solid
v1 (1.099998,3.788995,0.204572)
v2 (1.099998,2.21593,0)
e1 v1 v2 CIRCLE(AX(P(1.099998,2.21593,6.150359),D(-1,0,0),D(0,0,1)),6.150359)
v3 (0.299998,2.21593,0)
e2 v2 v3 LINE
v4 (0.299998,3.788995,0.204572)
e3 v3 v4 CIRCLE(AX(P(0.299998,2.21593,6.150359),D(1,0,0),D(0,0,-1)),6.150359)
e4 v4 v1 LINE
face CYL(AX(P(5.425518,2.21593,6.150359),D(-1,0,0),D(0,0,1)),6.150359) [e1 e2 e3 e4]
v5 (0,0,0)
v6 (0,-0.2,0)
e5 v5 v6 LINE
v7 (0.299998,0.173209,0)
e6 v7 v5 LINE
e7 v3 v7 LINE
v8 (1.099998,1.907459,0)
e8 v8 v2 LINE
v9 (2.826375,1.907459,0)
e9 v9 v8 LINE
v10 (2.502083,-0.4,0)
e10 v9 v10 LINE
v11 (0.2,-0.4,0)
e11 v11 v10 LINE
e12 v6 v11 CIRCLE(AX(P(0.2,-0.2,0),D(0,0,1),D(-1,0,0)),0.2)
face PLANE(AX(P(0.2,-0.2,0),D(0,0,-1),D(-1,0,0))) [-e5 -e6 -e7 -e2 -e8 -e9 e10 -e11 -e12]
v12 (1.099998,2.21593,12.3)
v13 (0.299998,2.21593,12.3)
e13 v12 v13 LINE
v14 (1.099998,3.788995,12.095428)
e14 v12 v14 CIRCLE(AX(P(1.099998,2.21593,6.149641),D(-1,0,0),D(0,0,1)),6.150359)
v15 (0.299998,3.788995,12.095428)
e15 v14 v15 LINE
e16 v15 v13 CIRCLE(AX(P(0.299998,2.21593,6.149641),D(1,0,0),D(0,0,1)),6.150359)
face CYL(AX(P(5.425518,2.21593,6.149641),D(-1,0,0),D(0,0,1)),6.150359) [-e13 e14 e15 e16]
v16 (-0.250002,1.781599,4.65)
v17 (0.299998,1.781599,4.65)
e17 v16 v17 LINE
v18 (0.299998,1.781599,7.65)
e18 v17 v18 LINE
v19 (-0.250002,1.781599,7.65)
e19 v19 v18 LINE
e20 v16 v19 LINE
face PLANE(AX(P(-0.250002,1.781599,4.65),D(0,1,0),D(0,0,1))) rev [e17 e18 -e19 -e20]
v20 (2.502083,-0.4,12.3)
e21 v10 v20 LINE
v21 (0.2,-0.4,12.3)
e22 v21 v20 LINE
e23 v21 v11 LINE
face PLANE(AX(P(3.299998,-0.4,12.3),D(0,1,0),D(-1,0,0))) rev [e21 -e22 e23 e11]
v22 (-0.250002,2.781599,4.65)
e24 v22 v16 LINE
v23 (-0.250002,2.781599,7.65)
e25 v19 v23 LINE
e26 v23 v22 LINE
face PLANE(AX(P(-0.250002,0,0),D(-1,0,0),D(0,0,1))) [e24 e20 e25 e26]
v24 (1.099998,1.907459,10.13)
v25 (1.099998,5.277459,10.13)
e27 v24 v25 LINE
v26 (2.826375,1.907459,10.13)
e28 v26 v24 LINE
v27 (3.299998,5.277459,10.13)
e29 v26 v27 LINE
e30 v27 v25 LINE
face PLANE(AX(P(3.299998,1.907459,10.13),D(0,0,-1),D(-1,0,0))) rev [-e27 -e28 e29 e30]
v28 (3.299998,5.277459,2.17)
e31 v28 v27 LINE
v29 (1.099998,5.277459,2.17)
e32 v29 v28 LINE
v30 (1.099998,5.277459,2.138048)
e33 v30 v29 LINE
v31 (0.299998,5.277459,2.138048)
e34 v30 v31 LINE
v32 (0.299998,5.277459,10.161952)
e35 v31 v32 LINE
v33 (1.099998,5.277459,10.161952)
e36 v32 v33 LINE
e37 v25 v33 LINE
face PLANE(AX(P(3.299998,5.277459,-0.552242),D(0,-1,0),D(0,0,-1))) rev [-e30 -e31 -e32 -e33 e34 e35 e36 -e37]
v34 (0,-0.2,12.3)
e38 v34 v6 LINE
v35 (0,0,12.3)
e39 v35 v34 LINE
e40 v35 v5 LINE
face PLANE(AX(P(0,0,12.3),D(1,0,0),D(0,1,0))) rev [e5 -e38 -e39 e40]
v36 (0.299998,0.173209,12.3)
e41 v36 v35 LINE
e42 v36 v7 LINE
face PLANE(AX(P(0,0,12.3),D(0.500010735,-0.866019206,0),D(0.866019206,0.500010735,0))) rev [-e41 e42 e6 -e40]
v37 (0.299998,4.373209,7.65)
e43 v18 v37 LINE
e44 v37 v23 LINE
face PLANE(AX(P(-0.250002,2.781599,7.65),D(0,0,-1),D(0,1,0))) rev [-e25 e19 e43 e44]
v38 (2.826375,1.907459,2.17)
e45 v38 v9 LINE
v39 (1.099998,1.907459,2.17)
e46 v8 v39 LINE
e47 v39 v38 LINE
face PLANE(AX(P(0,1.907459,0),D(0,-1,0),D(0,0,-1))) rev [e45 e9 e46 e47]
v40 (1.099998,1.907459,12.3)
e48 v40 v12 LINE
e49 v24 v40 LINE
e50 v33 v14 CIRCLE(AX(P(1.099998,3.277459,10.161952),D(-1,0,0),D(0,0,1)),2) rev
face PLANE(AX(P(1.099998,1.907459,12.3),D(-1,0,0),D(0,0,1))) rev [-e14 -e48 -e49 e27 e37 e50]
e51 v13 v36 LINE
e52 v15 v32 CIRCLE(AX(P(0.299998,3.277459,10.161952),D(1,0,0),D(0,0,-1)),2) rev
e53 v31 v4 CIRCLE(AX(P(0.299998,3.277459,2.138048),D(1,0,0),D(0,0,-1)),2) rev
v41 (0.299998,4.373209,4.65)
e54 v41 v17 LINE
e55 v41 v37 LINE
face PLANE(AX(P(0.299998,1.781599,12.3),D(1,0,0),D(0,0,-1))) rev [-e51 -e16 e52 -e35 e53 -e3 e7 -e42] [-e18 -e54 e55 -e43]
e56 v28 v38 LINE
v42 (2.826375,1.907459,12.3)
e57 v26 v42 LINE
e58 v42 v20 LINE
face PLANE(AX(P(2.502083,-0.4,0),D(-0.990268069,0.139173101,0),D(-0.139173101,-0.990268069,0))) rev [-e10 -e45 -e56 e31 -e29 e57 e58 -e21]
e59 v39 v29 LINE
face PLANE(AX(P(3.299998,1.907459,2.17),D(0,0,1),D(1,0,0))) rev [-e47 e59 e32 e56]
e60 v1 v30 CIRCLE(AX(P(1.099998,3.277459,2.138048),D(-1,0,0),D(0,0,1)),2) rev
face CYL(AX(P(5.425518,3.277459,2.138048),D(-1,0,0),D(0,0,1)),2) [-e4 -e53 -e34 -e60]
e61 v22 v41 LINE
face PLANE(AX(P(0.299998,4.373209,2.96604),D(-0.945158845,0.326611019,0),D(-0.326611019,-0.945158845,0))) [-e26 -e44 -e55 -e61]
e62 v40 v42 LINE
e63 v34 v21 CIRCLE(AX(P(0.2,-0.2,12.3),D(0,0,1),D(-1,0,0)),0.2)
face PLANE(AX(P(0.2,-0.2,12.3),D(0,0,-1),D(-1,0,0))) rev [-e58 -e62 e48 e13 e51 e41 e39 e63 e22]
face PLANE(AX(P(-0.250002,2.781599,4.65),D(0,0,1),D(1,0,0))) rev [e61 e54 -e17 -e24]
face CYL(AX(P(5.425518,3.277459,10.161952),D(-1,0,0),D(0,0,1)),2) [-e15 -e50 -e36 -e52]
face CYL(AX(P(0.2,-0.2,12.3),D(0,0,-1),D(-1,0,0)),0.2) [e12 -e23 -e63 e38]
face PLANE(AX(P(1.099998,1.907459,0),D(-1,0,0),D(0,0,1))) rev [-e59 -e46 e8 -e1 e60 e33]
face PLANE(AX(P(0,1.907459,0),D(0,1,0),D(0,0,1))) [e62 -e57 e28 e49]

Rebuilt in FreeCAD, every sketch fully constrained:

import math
import FreeCAD as App
import Part
import Sketcher
Q = App.Units.Quantity


def edges_at(feature, points):
    """Names of the edges that pass closest to the given points."""
    edges = feature.Shape.Edges
    near = lambda p: min(range(len(edges)), key=lambda i: edges[i].distToShape(Part.Vertex(*p))[0])
    return sorted({f"Edge{near(p) + 1}" for p in points})

doc = App.newDocument("Part")
params = doc.addObject("Spreadsheet::Sheet", "Params")
for row, (alias, value) in enumerate([
    ("sketch1_radius", "0.2 mm"),
    ("sketch1_width", "3 mm"),
    ("sketch1_height", "0.2 mm"),
    ("pad1_length", "12.3 mm"),
    ("sketch2_width", "2.2 mm"),
    ("sketch2_height", "2.17 mm"),
    ("pocket1_length", "4.2 mm"),
    ("pocket2_length", "0.8 mm"),
    ("sketch4_width", "1 mm"),
    ("sketch4_height", "3 mm"),
    ("pad2_length", "0.55 mm"),
    ("sketch5_width", "0.55 mm"),
    ("pad3_length", "3 mm"),
    ("sketch6_width", "0.83 mm"),
    ("fillet_radius", "2 mm"),
], start=1):
    params.set(f"A{row}", alias)
    params.set(f"B{row}", "=" + value)
    params.setAlias(f"B{row}", alias)

body = doc.addObject("PartDesign::Body", "Body")

# Sketch on XY plane
sketch1 = body.newObject("Sketcher::SketchObject", "Sketch")
sketch1.AttachmentSupport = (doc.getObject("XY_Plane"), [""])
sketch1.MapMode = "FlatFace"
sketch1.addGeometry([
    Part.LineSegment(App.Vector(0.3, 0.17, 0), App.Vector(0, 0, 0)),  # 0
    Part.LineSegment(App.Vector(0, 0, 0), App.Vector(0, -0.2, 0)),  # 1
    Part.ArcOfCircle(Part.Circle(App.Vector(0.2, -0.2, 0), App.Vector(0, 0, 1), 0.2), math.radians(-180), math.radians(-90)),  # 2
    Part.LineSegment(App.Vector(0.2, -0.4, 0), App.Vector(3.3, -0.4, 0)),  # 3
    Part.LineSegment(App.Vector(3.3, -0.4, 0), App.Vector(3.3, 6.11, 0)),  # 4
    Part.LineSegment(App.Vector(3.3, 6.11, 0), App.Vector(0.3, 6.11, 0)),  # 5
    Part.LineSegment(App.Vector(0.3, 6.11, 0), App.Vector(0.3, 0.17, 0)),  # 6
], False)
sketch1.addConstraint([
    Sketcher.Constraint("Coincident", 0, 2, 1, 1),
    Sketcher.Constraint("Tangent", 1, 2, 2, 1),
    Sketcher.Constraint("Tangent", 2, 2, 3, 1),
    Sketcher.Constraint("Coincident", 3, 2, 4, 1),
    Sketcher.Constraint("Coincident", 4, 2, 5, 1),
    Sketcher.Constraint("Coincident", 5, 2, 6, 1),
    Sketcher.Constraint("Coincident", 6, 2, 0, 1),
    Sketcher.Constraint("Vertical", 1),
    Sketcher.Constraint("Horizontal", 3),
    Sketcher.Constraint("Vertical", 4),
    Sketcher.Constraint("Horizontal", 5),
    Sketcher.Constraint("Vertical", 6),
    Sketcher.Constraint("Coincident", 0, 2, -1, 1),
    Sketcher.Constraint("Radius", 2, Q("0.2 mm")),
    Sketcher.Constraint("DistanceX", 5, 2, 5, 1, Q("3 mm")),
    Sketcher.Constraint("DistanceY", 1, 2, 1, 1, Q("0.2 mm")),
    Sketcher.Constraint("DistanceY", 4, 1, 4, 2, Q("6.507459 mm")),
    Sketcher.Constraint("DistanceY", 6, 2, 6, 1, Q("5.93425 mm")),
    Sketcher.Constraint("Distance", 0, Q("0.34641 mm")),
])
sketch1.setExpression("Constraints[13]", "Params.sketch1_radius")
sketch1.setExpression("Constraints[14]", "Params.sketch1_width")
sketch1.setExpression("Constraints[15]", "Params.sketch1_height")
pad1 = body.newObject("PartDesign::Pad", "Pad")
pad1.Profile = sketch1
pad1.setExpression("Length", "Params.pad1_length")

# Sketch on XZ plane
sketch2 = body.newObject("Sketcher::SketchObject", "Sketch001")
sketch2.AttachmentSupport = (doc.getObject("XZ_Plane"), [""])
sketch2.MapMode = "FlatFace"
sketch2.AttachmentOffset = App.Placement(App.Vector(0, 0, -6.107459), App.Rotation())
sketch2.addGeometry([
    Part.LineSegment(App.Vector(1.1, 0, 0), App.Vector(1.1, 2.2, 0)),  # 0
    Part.LineSegment(App.Vector(1.1, 2.2, 0), App.Vector(3.3, 2.2, 0)),  # 1
    Part.LineSegment(App.Vector(3.3, 2.2, 0), App.Vector(3.3, 0, 0)),  # 2
    Part.LineSegment(App.Vector(3.3, 0, 0), App.Vector(1.1, 0, 0)),  # 3
    Part.LineSegment(App.Vector(1.1, 10.1, 0), App.Vector(1.1, 12.3, 0)),  # 4
    Part.LineSegment(App.Vector(1.1, 12.3, 0), App.Vector(3.3, 12.3, 0)),  # 5
    Part.LineSegment(App.Vector(3.3, 12.3, 0), App.Vector(3.3, 10.1, 0)),  # 6
    Part.LineSegment(App.Vector(3.3, 10.1, 0), App.Vector(1.1, 10.1, 0)),  # 7
], False)
sketch2.addConstraint([
    Sketcher.Constraint("Coincident", 0, 2, 1, 1),
    Sketcher.Constraint("Coincident", 1, 2, 2, 1),
    Sketcher.Constraint("Coincident", 2, 2, 3, 1),
    Sketcher.Constraint("Coincident", 3, 2, 0, 1),
    Sketcher.Constraint("Coincident", 4, 2, 5, 1),
    Sketcher.Constraint("Coincident", 5, 2, 6, 1),
    Sketcher.Constraint("Coincident", 6, 2, 7, 1),
    Sketcher.Constraint("Coincident", 7, 2, 4, 1),
    Sketcher.Constraint("Vertical", 0),
    Sketcher.Constraint("Horizontal", 1),
    Sketcher.Constraint("Vertical", 2),
    Sketcher.Constraint("Horizontal", 3),
    Sketcher.Constraint("Vertical", 4),
    Sketcher.Constraint("Horizontal", 5),
    Sketcher.Constraint("Vertical", 6),
    Sketcher.Constraint("Horizontal", 7),
    Sketcher.Constraint("PointOnObject", 2, 2, -1),
    Sketcher.Constraint("Vertical", 3, 2, 4, 2),
    Sketcher.Constraint("Vertical", 2, 2, 5, 2),
    Sketcher.Constraint("Equal", 2, 4),
    Sketcher.Constraint("DistanceX", 1, 1, 1, 2, Q("2.2 mm")),
    Sketcher.Constraint("DistanceY", 0, 1, 0, 2, Q("2.17 mm")),
    Sketcher.Constraint("DistanceY", -1, 1, 4, 2, Q("12.3 mm")),
    Sketcher.Constraint("DistanceX", -1, 1, 0, 2, Q("1.099998 mm")),
])
sketch2.setExpression("Constraints[20]", "Params.sketch2_width")
sketch2.setExpression("Constraints[21]", "Params.sketch2_height")
pocket1 = body.newObject("PartDesign::Pocket", "Pocket")
pocket1.Profile = sketch2
pocket1.setExpression("Length", "Params.pocket1_length")
pocket1.Reversed = True

# Sketch on YZ plane
sketch3 = body.newObject("Sketcher::SketchObject", "Sketch002")
sketch3.AttachmentSupport = (doc.getObject("YZ_Plane"), [""])
sketch3.MapMode = "FlatFace"
sketch3.AttachmentOffset = App.Placement(App.Vector(0, 0, 0.299998), App.Rotation())
sketch3.addGeometry([
    Part.LineSegment(App.Vector(6.1, 12.3, 0), App.Vector(6.1, 10.4, 0)),  # 0
    Part.ArcOfCircle(Part.Circle(App.Vector(5.1, 10.4, 0), App.Vector(0, 0, 1), 1), math.radians(0), math.radians(56)),  # 1
    Part.ArcOfCircle(Part.Circle(App.Vector(2.2, 6.1, 0), App.Vector(0, 0, 1), 6.2), math.radians(56), math.radians(90)),  # 2
    Part.LineSegment(App.Vector(2.2, 12.3, 0), App.Vector(6.1, 12.3, 0)),  # 3
    Part.LineSegment(App.Vector(6.1, 1.9, 0), App.Vector(6.1, 0, 0)),  # 4
    Part.LineSegment(App.Vector(6.1, 0, 0), App.Vector(2.2, 0, 0)),  # 5
    Part.ArcOfCircle(Part.Circle(App.Vector(2.2, 6.2, 0), App.Vector(0, 0, 1), 6.2), math.radians(-90), math.radians(-56)),  # 6
    Part.ArcOfCircle(Part.Circle(App.Vector(5.1, 1.9, 0), App.Vector(0, 0, 1), 1), math.radians(-56), math.radians(0)),  # 7
], False)
sketch3.addConstraint([
    Sketcher.Constraint("Coincident", 0, 2, 1, 1),
    Sketcher.Constraint("Tangent", 1, 2, 2, 1),
    Sketcher.Constraint("Tangent", 2, 2, 3, 1),
    Sketcher.Constraint("Coincident", 3, 2, 0, 1),
    Sketcher.Constraint("Coincident", 4, 2, 5, 1),
    Sketcher.Constraint("Tangent", 5, 2, 6, 1),
    Sketcher.Constraint("Tangent", 6, 2, 7, 1),
    Sketcher.Constraint("Coincident", 7, 2, 4, 1),
    Sketcher.Constraint("Vertical", 0),
    Sketcher.Constraint("Horizontal", 3),
    Sketcher.Constraint("Vertical", 4),
    Sketcher.Constraint("Horizontal", 5),
    Sketcher.Constraint("Equal", 2, 6),
    Sketcher.Constraint("Equal", 1, 7),
    Sketcher.Constraint("PointOnObject", 4, 2, -1),
    Sketcher.Constraint("Vertical", 2, 3, 6, 3),
    Sketcher.Constraint("Vertical", 1, 3, 7, 3),
    Sketcher.Constraint("Equal", 0, 4),
    Sketcher.Constraint("DistanceY", -1, 1, 2, 2, Q("12.3 mm")),
    Sketcher.Constraint("Radius", 1, Q("0.999691 mm")),
    Sketcher.Constraint("Radius", 2, Q("6.150359 mm")),
    Sketcher.Constraint("DistanceX", 3, 1, 3, 2, Q("3.891529 mm")),
    Sketcher.Constraint("DistanceY", 0, 2, 0, 1, Q("1.88842 mm")),
    Sketcher.Constraint("DistanceX", -1, 1, 2, 3, Q("2.21593 mm")),
])
pocket2 = body.newObject("PartDesign::Pocket", "Pocket001")
pocket2.Profile = sketch3
pocket2.setExpression("Length", "Params.pocket2_length")
pocket2.Reversed = True

# Sketch on YZ plane
sketch4 = body.newObject("Sketcher::SketchObject", "Sketch003")
sketch4.AttachmentSupport = (doc.getObject("YZ_Plane"), [""])
sketch4.MapMode = "FlatFace"
sketch4.AttachmentOffset = App.Placement(App.Vector(0, 0, 0.299998), App.Rotation())
sketch4.addGeometry([
    Part.LineSegment(App.Vector(2.8, 4.7, 0), App.Vector(1.8, 4.7, 0)),
    Part.LineSegment(App.Vector(1.8, 4.7, 0), App.Vector(1.8, 7.7, 0)),
    Part.LineSegment(App.Vector(1.8, 7.7, 0), App.Vector(2.8, 7.7, 0)),
    Part.LineSegment(App.Vector(2.8, 7.7, 0), App.Vector(2.8, 4.7, 0)),
], False)
sketch4.addConstraint([
    Sketcher.Constraint("Coincident", 0, 2, 1, 1),
    Sketcher.Constraint("Coincident", 1, 2, 2, 1),
    Sketcher.Constraint("Coincident", 2, 2, 3, 1),
    Sketcher.Constraint("Coincident", 3, 2, 0, 1),
    Sketcher.Constraint("Horizontal", 0),
    Sketcher.Constraint("Vertical", 1),
    Sketcher.Constraint("Horizontal", 2),
    Sketcher.Constraint("Vertical", 3),
    Sketcher.Constraint("DistanceX", 0, 2, 0, 1, Q("1 mm")),
    Sketcher.Constraint("DistanceY", 1, 1, 1, 2, Q("3 mm")),
    Sketcher.Constraint("DistanceY", -1, 1, 0, 2, Q("4.65 mm")),
    Sketcher.Constraint("DistanceX", -1, 1, 0, 2, Q("1.781599 mm")),
])
sketch4.setExpression("Constraints[8]", "Params.sketch4_width")
sketch4.setExpression("Constraints[9]", "Params.sketch4_height")
pad2 = body.newObject("PartDesign::Pad", "Pad001")
pad2.Profile = sketch4
pad2.setExpression("Length", "Params.pad2_length")
pad2.Reversed = True

# Sketch on XY plane
sketch5 = body.newObject("Sketcher::SketchObject", "Sketch004")
sketch5.AttachmentSupport = (doc.getObject("XY_Plane"), [""])
sketch5.MapMode = "FlatFace"
sketch5.AttachmentOffset = App.Placement(App.Vector(0, 0, 7.65), App.Rotation())
sketch5.addGeometry([
    Part.LineSegment(App.Vector(0.3, 2.8, 0), App.Vector(0.3, 4.4, 0)),
    Part.LineSegment(App.Vector(0.3, 4.4, 0), App.Vector(-0.3, 2.8, 0)),
    Part.LineSegment(App.Vector(-0.3, 2.8, 0), App.Vector(0.3, 2.8, 0)),
], False)
sketch5.addConstraint([
    Sketcher.Constraint("Coincident", 0, 2, 1, 1),
    Sketcher.Constraint("Coincident", 1, 2, 2, 1),
    Sketcher.Constraint("Coincident", 2, 2, 0, 1),
    Sketcher.Constraint("Vertical", 0),
    Sketcher.Constraint("Horizontal", 2),
    Sketcher.Constraint("DistanceX", 2, 1, 2, 2, Q("0.55 mm")),
    Sketcher.Constraint("DistanceY", 0, 1, 0, 2, Q("1.59161 mm")),
    Sketcher.Constraint("DistanceY", -1, 1, 1, 2, Q("2.781599 mm")),
    Sketcher.Constraint("DistanceX", -1, 1, 0, 2, Q("0.299998 mm")),
])
sketch5.setExpression("Constraints[5]", "Params.sketch5_width")
pad3 = body.newObject("PartDesign::Pad", "Pad002")
pad3.Profile = sketch5
pad3.setExpression("Length", "Params.pad3_length")
pad3.Reversed = True

# Sketch on YZ plane
sketch6 = body.newObject("Sketcher::SketchObject", "Sketch005")
sketch6.AttachmentSupport = (doc.getObject("YZ_Plane"), [""])
sketch6.MapMode = "FlatFace"
sketch6.AttachmentOffset = App.Placement(App.Vector(0, 0, 0.299998), App.Rotation())
sketch6.addGeometry([
    Part.LineSegment(App.Vector(6.1, -0.6, 0), App.Vector(5.3, -0.6, 0)),
    Part.LineSegment(App.Vector(5.3, -0.6, 0), App.Vector(5.3, 12.5, 0)),
    Part.LineSegment(App.Vector(5.3, 12.5, 0), App.Vector(6.1, 12.5, 0)),
    Part.LineSegment(App.Vector(6.1, 12.5, 0), App.Vector(6.1, -0.6, 0)),
], False)
sketch6.addConstraint([
    Sketcher.Constraint("Coincident", 0, 2, 1, 1),
    Sketcher.Constraint("Coincident", 1, 2, 2, 1),
    Sketcher.Constraint("Coincident", 2, 2, 3, 1),
    Sketcher.Constraint("Coincident", 3, 2, 0, 1),
    Sketcher.Constraint("Horizontal", 0),
    Sketcher.Constraint("Vertical", 1),
    Sketcher.Constraint("Horizontal", 2),
    Sketcher.Constraint("Vertical", 3),
    Sketcher.Constraint("DistanceX", 0, 2, 0, 1, Q("0.83 mm")),
    Sketcher.Constraint("DistanceY", 1, 1, 1, 2, Q("13.013137 mm")),
    Sketcher.Constraint("DistanceX", -1, 1, 0, 2, Q("5.277459 mm")),
    Sketcher.Constraint("DistanceY", 0, 2, -1, 1, Q("0.552242 mm")),
])
sketch6.setExpression("Constraints[8]", "Params.sketch6_width")
pocket3 = body.newObject("PartDesign::Pocket", "Pocket002")
pocket3.Profile = sketch6
pocket3.Type = "ThroughAll"
pocket3.Reversed = True
doc.recompute()

fillet = body.newObject("PartDesign::Fillet", "Fillet")
fillet.Base = (pocket3, edges_at(pocket3, [(0.7, 5.277, 0.816), (0.7, 5.277, 11.484)]))
fillet.setExpression("Radius", "Params.fillet_radius")

# Sketch on XY plane
sketch7 = body.newObject("Sketcher::SketchObject", "Sketch006")
sketch7.AttachmentSupport = (doc.getObject("XY_Plane"), [""])
sketch7.MapMode = "FlatFace"
sketch7.AttachmentOffset = App.Placement(App.Vector(0, 0, 12.3), App.Rotation())
sketch7.addGeometry([
    Part.LineSegment(App.Vector(2.5, -0.4, 0), App.Vector(3.3, -0.4, 0)),
    Part.LineSegment(App.Vector(3.3, -0.4, 0), App.Vector(3.3, 5.3, 0)),
    Part.LineSegment(App.Vector(3.3, 5.3, 0), App.Vector(2.5, -0.4, 0)),
], False)
sketch7.addConstraint([
    Sketcher.Constraint("Coincident", 0, 2, 1, 1),
    Sketcher.Constraint("Coincident", 1, 2, 2, 1),
    Sketcher.Constraint("Coincident", 2, 2, 0, 1),
    Sketcher.Constraint("Horizontal", 0),
    Sketcher.Constraint("Vertical", 1),
    Sketcher.Constraint("Angle", 2, Q("-98 deg")),
    Sketcher.Constraint("DistanceY", 0, 2, -1, 1, Q("0.4 mm")),
    Sketcher.Constraint("DistanceY", 1, 1, 1, 2, Q("5.677459 mm")),
    Sketcher.Constraint("DistanceX", -1, 1, 0, 2, Q("3.299998 mm")),
])
pocket4 = body.newObject("PartDesign::Pocket", "Pocket003")
pocket4.Profile = sketch7
pocket4.Type = "ThroughAll"

doc.recompute()
